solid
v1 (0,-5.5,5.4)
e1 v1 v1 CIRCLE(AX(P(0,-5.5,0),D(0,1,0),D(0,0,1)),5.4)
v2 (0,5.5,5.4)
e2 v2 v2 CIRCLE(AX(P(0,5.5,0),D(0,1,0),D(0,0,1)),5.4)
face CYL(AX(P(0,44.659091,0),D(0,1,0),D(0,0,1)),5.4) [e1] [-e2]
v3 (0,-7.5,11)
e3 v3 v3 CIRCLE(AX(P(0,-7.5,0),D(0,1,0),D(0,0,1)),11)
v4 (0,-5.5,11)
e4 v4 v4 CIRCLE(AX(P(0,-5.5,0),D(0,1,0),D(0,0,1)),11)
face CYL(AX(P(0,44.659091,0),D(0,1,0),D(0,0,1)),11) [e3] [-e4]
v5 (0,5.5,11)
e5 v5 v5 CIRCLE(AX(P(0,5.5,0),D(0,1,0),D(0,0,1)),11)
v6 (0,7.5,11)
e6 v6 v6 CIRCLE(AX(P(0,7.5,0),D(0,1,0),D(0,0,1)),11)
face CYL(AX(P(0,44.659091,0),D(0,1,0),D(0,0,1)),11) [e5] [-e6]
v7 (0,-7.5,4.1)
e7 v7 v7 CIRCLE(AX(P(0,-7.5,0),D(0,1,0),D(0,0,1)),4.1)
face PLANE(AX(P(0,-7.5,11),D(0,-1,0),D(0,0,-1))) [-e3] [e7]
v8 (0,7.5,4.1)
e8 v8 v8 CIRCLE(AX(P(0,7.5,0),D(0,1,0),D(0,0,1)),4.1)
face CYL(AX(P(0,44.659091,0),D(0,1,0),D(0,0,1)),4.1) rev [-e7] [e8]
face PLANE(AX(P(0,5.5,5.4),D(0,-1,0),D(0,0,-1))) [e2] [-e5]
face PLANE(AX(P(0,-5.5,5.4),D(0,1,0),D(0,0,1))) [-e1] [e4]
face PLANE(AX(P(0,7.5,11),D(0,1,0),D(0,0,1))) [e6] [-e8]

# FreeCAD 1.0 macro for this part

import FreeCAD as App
import Part
import Sketcher
Q = App.Units.Quantity


def add_polygon(sketch, points):
    """Adds a closed chain of lines whose ends are joined by coincident constraints."""
    first, n = sketch.GeometryCount, len(points)
    for a, b in zip(points, points[1:] + points[:1]):
        sketch.addGeometry(Part.LineSegment(App.Vector(*a, 0), App.Vector(*b, 0)), False)
    for i in range(n):
        sketch.addConstraint(Sketcher.Constraint("Coincident", first + i, 2, first + (i + 1) % n, 1))

doc = App.newDocument("Part")
body = doc.addObject("PartDesign::Body", "Body")

# Sketch on YZ plane
sketch1 = body.newObject("Sketcher::SketchObject", "Sketch")
sketch1.AttachmentSupport = (doc.getObject("YZ_Plane"), [""])
sketch1.MapMode = "FlatFace"
add_polygon(sketch1, [(5.5, 5.4), (-5.5, 5.4), (-5.5, 11), (-7.5, 11), (-7.5, 4.1), (7.5, 4.1), (7.5, 11), (5.5, 11)])  # lines 0-7
sketch1.addConstraint(Sketcher.Constraint("Horizontal", 0))
sketch1.addConstraint(Sketcher.Constraint("Vertical", 1))
sketch1.addConstraint(Sketcher.Constraint("Horizontal", 2))
sketch1.addConstraint(Sketcher.Constraint("Vertical", 3))
sketch1.addConstraint(Sketcher.Constraint("Horizontal", 4))
sketch1.addConstraint(Sketcher.Constraint("Vertical", 5))
sketch1.addConstraint(Sketcher.Constraint("Horizontal", 6))
sketch1.addConstraint(Sketcher.Constraint("Vertical", 7))
sketch1.addConstraint(Sketcher.Constraint("Symmetric", 2, 2, 5, 2, -2))
sketch1.addConstraint(Sketcher.Constraint("Equal", 2, 6))
sketch1.addConstraint(Sketcher.Constraint("DistanceX", 0, 2, 0, 1, Q("11 mm")))
sketch1.addConstraint(Sketcher.Constraint("DistanceX", 2, 2, 2, 1, Q("2 mm")))
sketch1.addConstraint(Sketcher.Constraint("DistanceY", 1, 1, 1, 2, Q("5.6 mm")))
sketch1.addConstraint(Sketcher.Constraint("DistanceY", 3, 2, 3, 1, Q("6.9 mm")))
sketch1.addConstraint(Sketcher.Constraint("DistanceY", -1, 1, 1, 2, Q("11 mm")))
revolution = body.newObject("PartDesign::Revolution", "Revolution")
revolution.Profile = sketch1
revolution.ReferenceAxis = (sketch1, ["H_Axis"])
revolution.Angle = 360

doc.recompute()
